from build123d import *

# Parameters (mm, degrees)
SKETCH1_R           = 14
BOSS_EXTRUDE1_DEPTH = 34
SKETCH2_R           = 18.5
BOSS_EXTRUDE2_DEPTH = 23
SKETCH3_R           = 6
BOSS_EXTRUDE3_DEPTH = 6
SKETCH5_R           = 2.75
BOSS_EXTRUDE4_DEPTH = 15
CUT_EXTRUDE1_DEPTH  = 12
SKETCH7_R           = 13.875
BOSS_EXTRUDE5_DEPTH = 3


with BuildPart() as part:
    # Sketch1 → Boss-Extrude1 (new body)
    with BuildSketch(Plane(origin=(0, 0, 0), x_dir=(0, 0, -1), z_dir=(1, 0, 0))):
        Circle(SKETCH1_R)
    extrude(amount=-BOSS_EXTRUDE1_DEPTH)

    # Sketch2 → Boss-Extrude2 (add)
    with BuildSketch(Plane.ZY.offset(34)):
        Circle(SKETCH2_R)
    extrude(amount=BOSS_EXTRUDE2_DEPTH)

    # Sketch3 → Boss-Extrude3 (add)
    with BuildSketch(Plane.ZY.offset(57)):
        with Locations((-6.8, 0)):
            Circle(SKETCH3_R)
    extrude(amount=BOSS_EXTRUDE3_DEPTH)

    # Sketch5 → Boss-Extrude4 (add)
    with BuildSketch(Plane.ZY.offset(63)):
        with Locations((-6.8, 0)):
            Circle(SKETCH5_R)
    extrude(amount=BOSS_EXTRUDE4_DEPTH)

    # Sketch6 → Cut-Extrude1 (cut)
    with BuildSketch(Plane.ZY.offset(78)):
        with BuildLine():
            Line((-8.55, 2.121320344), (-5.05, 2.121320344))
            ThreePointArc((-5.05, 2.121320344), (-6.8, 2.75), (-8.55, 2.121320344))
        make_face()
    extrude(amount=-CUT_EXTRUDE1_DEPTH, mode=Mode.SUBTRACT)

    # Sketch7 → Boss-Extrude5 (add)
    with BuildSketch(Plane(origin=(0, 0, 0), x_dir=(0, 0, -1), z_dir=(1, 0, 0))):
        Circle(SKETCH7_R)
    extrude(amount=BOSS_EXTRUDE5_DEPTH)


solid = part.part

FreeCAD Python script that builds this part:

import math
import FreeCAD as App
import Part
import Sketcher

V = App.Vector
Q = App.Units.Quantity

doc = App.newDocument("Part")
body = doc.addObject("PartDesign::Body", "Body")

sketch1 = body.newObject("Sketcher::SketchObject", "Sketch")
sketch1.AttachmentSupport = (doc.getObject("YZ_Plane"), [""])
sketch1.MapMode = "FlatFace"
sketch1.addGeometry(Part.Circle(V(0, 0, 0), V(0, 0, 1), 14), False)
sketch1.addConstraint(Sketcher.Constraint("Coincident", 0, 3, -1, 1))
sketch1.addConstraint(Sketcher.Constraint("Diameter", 0, Q("28 mm")))
pad1 = body.newObject("PartDesign::Pad", "Pad")
pad1.Profile = sketch1
pad1.Length = 34
pad1.Reversed = True

sketch2 = body.newObject("Sketcher::SketchObject", "Sketch001")
sketch2.AttachmentSupport = (doc.getObject("YZ_Plane"), [""])
sketch2.MapMode = "FlatFace"
sketch2.AttachmentOffset = App.Placement(V(0, 0, -34), App.Rotation())
sketch2.addGeometry(Part.Circle(V(0, 0, 0), V(0, 0, 1), 18), False)
sketch2.addConstraint(Sketcher.Constraint("Coincident", 0, 3, -1, 1))
sketch2.addConstraint(Sketcher.Constraint("Diameter", 0, Q("37 mm")))
pad2 = body.newObject("PartDesign::Pad", "Pad001")
pad2.Profile = sketch2
pad2.Length = 23
pad2.Reversed = True

sketch3 = body.newObject("Sketcher::SketchObject", "Sketch002")
sketch3.AttachmentSupport = (doc.getObject("YZ_Plane"), [""])
sketch3.MapMode = "FlatFace"
sketch3.AttachmentOffset = App.Placement(V(0, 0, -57), App.Rotation())
sketch3.addGeometry(Part.Circle(V(0, -7, 0), V(0, 0, 1), 6), False)
sketch3.addConstraint(Sketcher.Constraint("PointOnObject", 0, 3, -2))
sketch3.addConstraint(Sketcher.Constraint("Diameter", 0, Q("12 mm")))
sketch3.addConstraint(Sketcher.Constraint("DistanceY", 0, 3, -1, 1, Q("6.8 mm")))
pad3 = body.newObject("PartDesign::Pad", "Pad002")
pad3.Profile = sketch3
pad3.Length = 6
pad3.Reversed = True

sketch4 = body.newObject("Sketcher::SketchObject", "Sketch003")
sketch4.AttachmentSupport = (doc.getObject("YZ_Plane"), [""])
sketch4.MapMode = "FlatFace"
sketch4.AttachmentOffset = App.Placement(V(0, 0, -63), App.Rotation())
sketch4.addGeometry(Part.Circle(V(0, -6.8, 0), V(0, 0, 1), 2.8), False)
sketch4.addConstraint(Sketcher.Constraint("PointOnObject", 0, 3, -2))
sketch4.addConstraint(Sketcher.Constraint("Diameter", 0, Q("5.5 mm")))
sketch4.addConstraint(Sketcher.Constraint("DistanceY", 0, 3, -1, 1, Q("6.8 mm")))
pad4 = body.newObject("PartDesign::Pad", "Pad003")
pad4.Profile = sketch4
pad4.Length = 15
pad4.Reversed = True

sketch5 = body.newObject("Sketcher::SketchObject", "Sketch004")
sketch5.AttachmentSupport = (doc.getObject("YZ_Plane"), [""])
sketch5.MapMode = "FlatFace"
sketch5.AttachmentOffset = App.Placement(V(0, 0, -78), App.Rotation())
sketch5.addGeometry(Part.LineSegment(V(2.1, -8.6, 0), V(2.1, -5, 0)), False)
sketch5.addGeometry(Part.ArcOfCircle(Part.Circle(V(0, -6.8, 0), V(0, 0, 1), 2.8), math.radians(-40), math.radians(40)), False)
sketch5.addConstraint(Sketcher.Constraint("Coincident", 0, 1, 1, 1))
sketch5.addConstraint(Sketcher.Constraint("Coincident", 1, 2, 0, 2))
sketch5.addConstraint(Sketcher.Constraint("Vertical", 0))
sketch5.addConstraint(Sketcher.Constraint("PointOnObject", 1, 3, -2))
sketch5.addConstraint(Sketcher.Constraint("Radius", 1, Q("2.75 mm")))
sketch5.addConstraint(Sketcher.Constraint("DistanceY", 0, 1, 0, 2, Q("3.5 mm")))
sketch5.addConstraint(Sketcher.Constraint("DistanceY", 1, 3, -1, 1, Q("6.8 mm")))
pocket1 = body.newObject("PartDesign::Pocket", "Pocket")
pocket1.Profile = sketch5
pocket1.Length = 12
pocket1.Reversed = True

sketch6 = body.newObject("Sketcher::SketchObject", "Sketch005")
sketch6.AttachmentSupport = (doc.getObject("YZ_Plane"), [""])
sketch6.MapMode = "FlatFace"
sketch6.addGeometry(Part.Circle(V(0, 0, 0), V(0, 0, 1), 14), False)
sketch6.addConstraint(Sketcher.Constraint("Coincident", 0, 3, -1, 1))
sketch6.addConstraint(Sketcher.Constraint("Diameter", 0, Q("27.75 mm")))
pad5 = body.newObject("PartDesign::Pad", "Pad004")
pad5.Profile = sketch6
pad5.Length = 3

doc.recompute()
